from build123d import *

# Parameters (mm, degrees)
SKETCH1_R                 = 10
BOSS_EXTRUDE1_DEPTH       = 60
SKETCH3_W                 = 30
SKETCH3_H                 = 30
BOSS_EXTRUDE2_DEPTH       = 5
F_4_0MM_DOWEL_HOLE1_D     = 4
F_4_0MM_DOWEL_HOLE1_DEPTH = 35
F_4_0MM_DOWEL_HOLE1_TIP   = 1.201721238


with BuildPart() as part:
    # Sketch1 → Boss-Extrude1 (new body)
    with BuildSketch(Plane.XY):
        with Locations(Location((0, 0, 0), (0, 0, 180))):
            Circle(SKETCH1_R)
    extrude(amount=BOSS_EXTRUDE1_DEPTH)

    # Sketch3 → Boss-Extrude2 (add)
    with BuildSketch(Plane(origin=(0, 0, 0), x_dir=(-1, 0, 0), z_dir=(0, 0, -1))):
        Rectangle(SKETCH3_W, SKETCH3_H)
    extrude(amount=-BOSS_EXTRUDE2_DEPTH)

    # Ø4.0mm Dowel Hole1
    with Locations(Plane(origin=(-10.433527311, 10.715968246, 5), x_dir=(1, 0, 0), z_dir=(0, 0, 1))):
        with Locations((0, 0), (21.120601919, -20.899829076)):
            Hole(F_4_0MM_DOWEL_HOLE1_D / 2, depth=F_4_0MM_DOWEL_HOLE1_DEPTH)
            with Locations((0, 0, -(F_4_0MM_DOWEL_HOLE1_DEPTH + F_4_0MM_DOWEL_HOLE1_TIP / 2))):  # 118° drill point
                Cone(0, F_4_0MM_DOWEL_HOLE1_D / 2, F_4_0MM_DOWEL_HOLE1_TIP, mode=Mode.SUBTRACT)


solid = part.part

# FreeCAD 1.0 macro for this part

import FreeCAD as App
import Part
import Sketcher

V = App.Vector
Q = App.Units.Quantity

doc = App.newDocument("Part")
params = doc.addObject("Spreadsheet::Sheet", "Params")
for row, (alias, value) in enumerate([
    ("sketch1_diameter", "20 mm"),
    ("pad1_length", "60 mm"),
    ("sketch2_width", "30 mm"),
    ("pad2_length", "5 mm"),
    ("sketch3_diameter", "4 mm"),
    ("hole_diameter", "4 mm"),
    ("hole_depth", "35 mm"),
], start=1):
    params.set(f"A{row}", alias)
    params.set(f"B{row}", "=" + value)
    params.setAlias(f"B{row}", alias)

body = doc.addObject("PartDesign::Body", "Body")

sketch1 = body.newObject("Sketcher::SketchObject", "Sketch")
sketch1.AttachmentSupport = (doc.getObject("XY_Plane"), [""])
sketch1.MapMode = "FlatFace"
sketch1.addGeometry(Part.Circle(V(0, 0, 0), V(0, 0, 1), 10), False)
sketch1.addConstraint([
    Sketcher.Constraint("Coincident", 0, 3, -1, 1),
    Sketcher.Constraint("Diameter", 0, Q("20 mm")),
])
sketch1.setExpression("Constraints[1]", "Params.sketch1_diameter")
pad1 = body.newObject("PartDesign::Pad", "Pad")
pad1.Profile = sketch1
pad1.setExpression("Length", "Params.pad1_length")

sketch2 = body.newObject("Sketcher::SketchObject", "Sketch001")
sketch2.AttachmentSupport = (doc.getObject("XY_Plane"), [""])
sketch2.MapMode = "FlatFace"
sketch2.addGeometry([
    Part.LineSegment(V(15, 15, 0), V(15, -15, 0)),
    Part.LineSegment(V(15, -15, 0), V(-15, -15, 0)),
    Part.LineSegment(V(-15, -15, 0), V(-15, 15, 0)),
    Part.LineSegment(V(-15, 15, 0), V(15, 15, 0)),
], False)
sketch2.addConstraint([
    Sketcher.Constraint("Coincident", 0, 2, 1, 1),
    Sketcher.Constraint("Coincident", 1, 2, 2, 1),
    Sketcher.Constraint("Coincident", 2, 2, 3, 1),
    Sketcher.Constraint("Coincident", 3, 2, 0, 1),
    Sketcher.Constraint("Vertical", 0),
    Sketcher.Constraint("Horizontal", 1),
    Sketcher.Constraint("Vertical", 2),
    Sketcher.Constraint("Horizontal", 3),
    Sketcher.Constraint("Symmetric", 0, 2, 2, 2, -1, 1),
    Sketcher.Constraint("Equal", 3, 0),
    Sketcher.Constraint("DistanceX", 1, 2, 1, 1, Q("30 mm")),
])
sketch2.setExpression("Constraints[10]", "Params.sketch2_width")
pad2 = body.newObject("PartDesign::Pad", "Pad001")
pad2.Profile = sketch2
pad2.setExpression("Length", "Params.pad2_length")

sketch3 = body.newObject("Sketcher::SketchObject", "Sketch002")
sketch3.AttachmentSupport = (doc.getObject("XY_Plane"), [""])
sketch3.MapMode = "FlatFace"
sketch3.AttachmentOffset = App.Placement(V(0, 0, 5), App.Rotation())
sketch3.addGeometry([
    Part.Circle(V(-10.4, 10.7, 0), V(0, 0, 1), 2),
    Part.Circle(V(10.7, -10.2, 0), V(0, 0, 1), 2),
], False)
sketch3.addConstraint([
    Sketcher.Constraint("Equal", 0, 1),
    Sketcher.Constraint("Diameter", 0, Q("4 mm")),
    Sketcher.Constraint("DistanceX", 0, 3, 1, 3, Q("21.120602 mm")),
    Sketcher.Constraint("DistanceY", -1, 1, 0, 3, Q("10.715968 mm")),
    Sketcher.Constraint("DistanceY", 1, 3, -1, 1, Q("10.183861 mm")),
    Sketcher.Constraint("DistanceX", 0, 3, -1, 1, Q("10.433527 mm")),
])
sketch3.setExpression("Constraints[1]", "Params.sketch3_diameter")
doc.recompute()
hole = body.newObject("PartDesign::Hole", "Hole")
hole.Profile = sketch3
hole.ThreadType = "None"
hole.setExpression("Diameter", "Params.hole_diameter")
hole.DepthType = "Dimension"
hole.setExpression("Depth", "Params.hole_depth")
hole.DrillPoint = "Angled"
hole.DrillPointAngle = 118

doc.recompute()
